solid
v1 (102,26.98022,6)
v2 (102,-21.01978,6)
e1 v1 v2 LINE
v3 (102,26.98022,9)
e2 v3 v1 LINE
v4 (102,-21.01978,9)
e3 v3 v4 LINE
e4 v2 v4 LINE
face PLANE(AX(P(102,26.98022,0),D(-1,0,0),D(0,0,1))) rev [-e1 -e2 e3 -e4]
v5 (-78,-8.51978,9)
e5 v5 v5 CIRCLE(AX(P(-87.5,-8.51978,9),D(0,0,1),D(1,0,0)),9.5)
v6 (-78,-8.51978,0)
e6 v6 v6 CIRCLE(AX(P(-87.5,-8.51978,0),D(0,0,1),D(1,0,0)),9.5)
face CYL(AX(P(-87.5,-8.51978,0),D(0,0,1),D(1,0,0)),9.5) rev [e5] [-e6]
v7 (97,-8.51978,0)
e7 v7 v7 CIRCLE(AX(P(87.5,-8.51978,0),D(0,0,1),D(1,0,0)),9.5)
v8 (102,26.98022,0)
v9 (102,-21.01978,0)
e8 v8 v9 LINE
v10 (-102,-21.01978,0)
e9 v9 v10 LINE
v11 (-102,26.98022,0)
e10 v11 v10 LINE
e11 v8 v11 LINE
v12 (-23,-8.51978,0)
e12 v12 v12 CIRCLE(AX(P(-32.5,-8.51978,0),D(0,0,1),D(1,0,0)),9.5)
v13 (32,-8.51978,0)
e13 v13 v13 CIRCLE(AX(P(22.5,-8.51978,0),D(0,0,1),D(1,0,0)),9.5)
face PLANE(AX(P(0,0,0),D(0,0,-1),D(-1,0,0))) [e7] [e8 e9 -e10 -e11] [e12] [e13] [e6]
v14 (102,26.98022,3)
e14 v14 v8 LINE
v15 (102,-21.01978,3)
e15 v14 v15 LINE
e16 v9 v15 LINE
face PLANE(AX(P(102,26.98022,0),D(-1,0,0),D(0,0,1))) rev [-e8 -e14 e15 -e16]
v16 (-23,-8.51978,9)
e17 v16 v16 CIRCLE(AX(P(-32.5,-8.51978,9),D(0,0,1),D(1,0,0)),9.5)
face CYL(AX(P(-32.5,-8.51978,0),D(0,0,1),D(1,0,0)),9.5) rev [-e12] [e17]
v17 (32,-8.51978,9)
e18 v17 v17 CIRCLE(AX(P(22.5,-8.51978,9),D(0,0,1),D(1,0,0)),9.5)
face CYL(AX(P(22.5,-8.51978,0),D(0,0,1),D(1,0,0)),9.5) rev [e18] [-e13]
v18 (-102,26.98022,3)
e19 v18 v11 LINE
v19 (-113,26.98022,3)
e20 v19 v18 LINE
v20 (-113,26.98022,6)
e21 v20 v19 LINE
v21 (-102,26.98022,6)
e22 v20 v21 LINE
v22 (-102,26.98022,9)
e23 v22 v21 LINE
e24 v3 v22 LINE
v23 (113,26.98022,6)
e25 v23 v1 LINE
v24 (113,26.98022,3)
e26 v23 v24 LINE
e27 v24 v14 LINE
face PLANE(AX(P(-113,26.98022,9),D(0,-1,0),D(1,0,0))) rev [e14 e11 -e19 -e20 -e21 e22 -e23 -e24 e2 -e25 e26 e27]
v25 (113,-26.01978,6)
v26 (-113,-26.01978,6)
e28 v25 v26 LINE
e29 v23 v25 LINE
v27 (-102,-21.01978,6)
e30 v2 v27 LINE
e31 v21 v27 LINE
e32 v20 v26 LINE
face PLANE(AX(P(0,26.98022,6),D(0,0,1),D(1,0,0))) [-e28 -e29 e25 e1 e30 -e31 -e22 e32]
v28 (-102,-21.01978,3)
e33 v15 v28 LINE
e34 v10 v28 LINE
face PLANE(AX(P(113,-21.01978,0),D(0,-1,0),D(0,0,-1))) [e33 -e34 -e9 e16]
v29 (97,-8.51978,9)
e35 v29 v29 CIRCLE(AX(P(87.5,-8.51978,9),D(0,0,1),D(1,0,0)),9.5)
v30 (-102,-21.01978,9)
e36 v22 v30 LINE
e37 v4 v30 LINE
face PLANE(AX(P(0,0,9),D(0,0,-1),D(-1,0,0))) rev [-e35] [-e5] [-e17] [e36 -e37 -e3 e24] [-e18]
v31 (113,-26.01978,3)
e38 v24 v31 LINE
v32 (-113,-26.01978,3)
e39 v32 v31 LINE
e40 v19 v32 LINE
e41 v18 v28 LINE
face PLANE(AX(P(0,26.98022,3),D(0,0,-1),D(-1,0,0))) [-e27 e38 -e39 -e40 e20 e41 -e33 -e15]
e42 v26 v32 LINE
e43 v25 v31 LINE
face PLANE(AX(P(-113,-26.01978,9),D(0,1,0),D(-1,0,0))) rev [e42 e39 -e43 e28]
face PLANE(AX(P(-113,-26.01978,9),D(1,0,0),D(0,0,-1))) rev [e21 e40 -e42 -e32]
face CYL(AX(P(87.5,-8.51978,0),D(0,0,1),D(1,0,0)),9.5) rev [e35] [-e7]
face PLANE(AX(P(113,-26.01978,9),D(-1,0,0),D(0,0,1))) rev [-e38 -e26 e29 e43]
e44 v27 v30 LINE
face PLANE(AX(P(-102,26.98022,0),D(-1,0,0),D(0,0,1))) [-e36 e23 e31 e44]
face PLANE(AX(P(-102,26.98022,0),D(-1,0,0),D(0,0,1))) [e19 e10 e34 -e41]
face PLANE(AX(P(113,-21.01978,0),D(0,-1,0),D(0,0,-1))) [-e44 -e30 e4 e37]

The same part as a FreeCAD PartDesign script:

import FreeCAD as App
import Part
import Sketcher
from FreeCAD import Vector


def add_polygon(sketch, points):
    """Adds a closed chain of lines whose ends are joined by coincident constraints."""
    first, n = sketch.GeometryCount, len(points)
    for a, b in zip(points, points[1:] + points[:1]):
        sketch.addGeometry(Part.LineSegment(App.Vector(*a, 0), App.Vector(*b, 0)), False)
    for i in range(n):
        sketch.addConstraint(Sketcher.Constraint("Coincident", first + i, 2, first + (i + 1) % n, 1))

doc = App.newDocument("Part")
params = doc.addObject("Spreadsheet::Sheet", "Params")
for row, (alias, value) in enumerate([
    ("sketch1_width", "226 mm"),
    ("sketch1_height", "53 mm"),
    ("pad1_length", "9 mm"),
    ("sketch2_diameter", "19 mm"),
    ("pocket1_length", "9 mm"),
    ("sketch3_width", "11 mm"),
    ("sketch3_height", "3 mm"),
    ("sketch4_width", "5 mm"),
    ("sketch4_height", "3 mm"),
], start=1):
    params.set(f"A{row}", alias)
    params.set(f"B{row}", "=" + value)
    params.setAlias(f"B{row}", alias)

body = doc.addObject("PartDesign::Body", "Body")

sketch1 = body.newObject("Sketcher::SketchObject", "Sketch")
sketch1.AttachmentSupport = (doc.getObject("XY_Plane"), [""])
sketch1.MapMode = "FlatFace"
add_polygon(sketch1, [(-113, 27), (-113, -26), (113, -26), (113, 27)])
sketch1.addConstraint(Sketcher.Constraint("Vertical", 0))
sketch1.addConstraint(Sketcher.Constraint("Horizontal", 1))
sketch1.addConstraint(Sketcher.Constraint("Vertical", 2))
sketch1.addConstraint(Sketcher.Constraint("Horizontal", 3))
sketch1.addConstraint(Sketcher.Constraint("DistanceX", 1, 1, 1, 2, 226.0))
sketch1.addConstraint(Sketcher.Constraint("DistanceY", 0, 2, 0, 1, 53.0))
sketch1.addConstraint(Sketcher.Constraint("DistanceX", 0, 2, -1, 1, 113.0))
sketch1.addConstraint(Sketcher.Constraint("DistanceY", 0, 2, -1, 1, 26.01978))
sketch1.setExpression("Constraints[8]", "Params.sketch1_width")
sketch1.setExpression("Constraints[9]", "Params.sketch1_height")
pad1 = body.newObject("PartDesign::Pad", "Pad")
pad1.Profile = sketch1
pad1.setExpression("Length", "Params.pad1_length")

sketch2 = body.newObject("Sketcher::SketchObject", "Sketch001")
sketch2.AttachmentSupport = (doc.getObject("XY_Plane"), [""])
sketch2.MapMode = "FlatFace"
sketch2.AttachmentOffset = App.Placement(Vector(0, 0, 9), App.Rotation())
sketch2.addGeometry(Part.Circle(Vector(-88, -9, 0), Vector(0, 0, 1), 10), False)
sketch2.addGeometry(Part.Circle(Vector(-32, -9, 0), Vector(0, 0, 1), 10), False)
sketch2.addGeometry(Part.Circle(Vector(22, -9, 0), Vector(0, 0, 1), 10), False)
sketch2.addGeometry(Part.Circle(Vector(88, -9, 0), Vector(0, 0, 1), 10), False)
sketch2.addConstraint(Sketcher.Constraint("Equal", 0, 1))
sketch2.addConstraint(Sketcher.Constraint("Equal", 1, 2))
sketch2.addConstraint(Sketcher.Constraint("Equal", 2, 3))
sketch2.addConstraint(Sketcher.Constraint("Symmetric", 0, 3, 3, 3, -2))
sketch2.addConstraint(Sketcher.Constraint("Horizontal", 0, 3, 1, 3))
sketch2.addConstraint(Sketcher.Constraint("Horizontal", 1, 3, 2, 3))
sketch2.addConstraint(Sketcher.Constraint("Diameter", 0, 19.0))
sketch2.addConstraint(Sketcher.Constraint("DistanceX", 0, 3, 1, 3, 55.0))
sketch2.addConstraint(Sketcher.Constraint("DistanceX", 1, 3, 2, 3, 55.0))
sketch2.addConstraint(Sketcher.Constraint("DistanceX", 2, 3, 3, 3, 65.0))
sketch2.addConstraint(Sketcher.Constraint("DistanceY", 0, 3, -1, 1, 8.51978))
sketch2.setExpression("Constraints[6]", "Params.sketch2_diameter")
pocket1 = body.newObject("PartDesign::Pocket", "Pocket")
pocket1.Profile = sketch2
pocket1.setExpression("Length", "Params.pocket1_length")

sketch3 = body.newObject("Sketcher::SketchObject", "Sketch002")
sketch3.AttachmentSupport = (doc.getObject("XZ_Plane"), [""])
sketch3.MapMode = "FlatFace"
sketch3.AttachmentOffset = App.Placement(Vector(0, 0, 26.01978), App.Rotation())
add_polygon(sketch3, [(-113, 9), (-113, 6), (-102, 6), (-102, 9)])
add_polygon(sketch3, [(-113, 3), (-113, 0), (-102, 0), (-102, 3)])
add_polygon(sketch3, [(102, 9), (102, 6), (113, 6), (113, 9)])
add_polygon(sketch3, [(102, 3), (102, 0), (113, 0), (113, 3)])
sketch3.addConstraint(Sketcher.Constraint("Vertical", 0))
sketch3.addConstraint(Sketcher.Constraint("Horizontal", 1))
sketch3.addConstraint(Sketcher.Constraint("Vertical", 2))
sketch3.addConstraint(Sketcher.Constraint("Horizontal", 3))
sketch3.addConstraint(Sketcher.Constraint("Vertical", 4))
sketch3.addConstraint(Sketcher.Constraint("Horizontal", 5))
sketch3.addConstraint(Sketcher.Constraint("Vertical", 6))
sketch3.addConstraint(Sketcher.Constraint("Horizontal", 7))
sketch3.addConstraint(Sketcher.Constraint("Vertical", 8))
sketch3.addConstraint(Sketcher.Constraint("Horizontal", 9))
sketch3.addConstraint(Sketcher.Constraint("Vertical", 10))
sketch3.addConstraint(Sketcher.Constraint("Horizontal", 11))
sketch3.addConstraint(Sketcher.Constraint("Vertical", 12))
sketch3.addConstraint(Sketcher.Constraint("Horizontal", 13))
sketch3.addConstraint(Sketcher.Constraint("Vertical", 14))
sketch3.addConstraint(Sketcher.Constraint("Horizontal", 15))
sketch3.addConstraint(Sketcher.Constraint("Symmetric", 5, 2, 12, 2, -1, 1))
sketch3.addConstraint(Sketcher.Constraint("Symmetric", 1, 2, 8, 2, -2))
sketch3.addConstraint(Sketcher.Constraint("Symmetric", 3, 2, 10, 2, -2))
sketch3.addConstraint(Sketcher.Constraint("Symmetric", 4, 2, 13, 2, -2))
sketch3.addConstraint(Sketcher.Constraint("Horizontal", 7, 2, 14, 2))
sketch3.addConstraint(Sketcher.Constraint("Vertical", 3, 2, 4, 2))
sketch3.addConstraint(Sketcher.Constraint("Vertical", 2, 2, 5, 2))
sketch3.addConstraint(Sketcher.Constraint("Equal", 2, 4))
sketch3.addConstraint(Sketcher.Constraint("DistanceX", 1, 1, 1, 2, 11.0))
sketch3.addConstraint(Sketcher.Constraint("DistanceY", 0, 2, 0, 1, 3.0))
sketch3.addConstraint(Sketcher.Constraint("DistanceX", 0, 2, -1, 1, 113.0))
sketch3.addConstraint(Sketcher.Constraint("DistanceY", -1, 1, 0, 2, 6.0))
sketch3.setExpression("Constraints[40]", "Params.sketch3_width")
sketch3.setExpression("Constraints[41]", "Params.sketch3_height")
pocket2 = body.newObject("PartDesign::Pocket", "Pocket001")
pocket2.Profile = sketch3
pocket2.Type = "ThroughAll"

sketch4 = body.newObject("Sketcher::SketchObject", "Sketch003")
sketch4.AttachmentSupport = (doc.getObject("YZ_Plane"), [""])
sketch4.MapMode = "FlatFace"
sketch4.AttachmentOffset = App.Placement(Vector(0, 0, -113), App.Rotation())
add_polygon(sketch4, [(-21, 0), (-26, 0), (-26, 3), (-21, 3)])
add_polygon(sketch4, [(-21, 6), (-26, 6), (-26, 9), (-21, 9)])
sketch4.addConstraint(Sketcher.Constraint("Horizontal", 0))
sketch4.addConstraint(Sketcher.Constraint("Vertical", 1))
sketch4.addConstraint(Sketcher.Constraint("Horizontal", 2))
sketch4.addConstraint(Sketcher.Constraint("Vertical", 3))
sketch4.addConstraint(Sketcher.Constraint("Horizontal", 4))
sketch4.addConstraint(Sketcher.Constraint("Vertical", 5))
sketch4.addConstraint(Sketcher.Constraint("Horizontal", 6))
sketch4.addConstraint(Sketcher.Constraint("Vertical", 7))
sketch4.addConstraint(Sketcher.Constraint("PointOnObject", 0, 2, -1))
sketch4.addConstraint(Sketcher.Constraint("Vertical", 1, 2, 4, 2))
sketch4.addConstraint(Sketcher.Constraint("Vertical", 3, 2, 6, 2))
sketch4.addConstraint(Sketcher.Constraint("Equal", 3, 5))
sketch4.addConstraint(Sketcher.Constraint("DistanceX", 0, 2, 0, 1, 5.0))
sketch4.addConstraint(Sketcher.Constraint("DistanceY", 1, 1, 1, 2, 3.0))
sketch4.addConstraint(Sketcher.Constraint("DistanceY", -1, 1, 4, 2, 6.0))
sketch4.addConstraint(Sketcher.Constraint("DistanceX", 0, 2, -1, 1, 26.01978))
sketch4.setExpression("Constraints[20]", "Params.sketch4_width")
sketch4.setExpression("Constraints[21]", "Params.sketch4_height")
pocket3 = body.newObject("PartDesign::Pocket", "Pocket002")
pocket3.Profile = sketch4
pocket3.Type = "ThroughAll"
pocket3.Reversed = True

doc.recompute()
